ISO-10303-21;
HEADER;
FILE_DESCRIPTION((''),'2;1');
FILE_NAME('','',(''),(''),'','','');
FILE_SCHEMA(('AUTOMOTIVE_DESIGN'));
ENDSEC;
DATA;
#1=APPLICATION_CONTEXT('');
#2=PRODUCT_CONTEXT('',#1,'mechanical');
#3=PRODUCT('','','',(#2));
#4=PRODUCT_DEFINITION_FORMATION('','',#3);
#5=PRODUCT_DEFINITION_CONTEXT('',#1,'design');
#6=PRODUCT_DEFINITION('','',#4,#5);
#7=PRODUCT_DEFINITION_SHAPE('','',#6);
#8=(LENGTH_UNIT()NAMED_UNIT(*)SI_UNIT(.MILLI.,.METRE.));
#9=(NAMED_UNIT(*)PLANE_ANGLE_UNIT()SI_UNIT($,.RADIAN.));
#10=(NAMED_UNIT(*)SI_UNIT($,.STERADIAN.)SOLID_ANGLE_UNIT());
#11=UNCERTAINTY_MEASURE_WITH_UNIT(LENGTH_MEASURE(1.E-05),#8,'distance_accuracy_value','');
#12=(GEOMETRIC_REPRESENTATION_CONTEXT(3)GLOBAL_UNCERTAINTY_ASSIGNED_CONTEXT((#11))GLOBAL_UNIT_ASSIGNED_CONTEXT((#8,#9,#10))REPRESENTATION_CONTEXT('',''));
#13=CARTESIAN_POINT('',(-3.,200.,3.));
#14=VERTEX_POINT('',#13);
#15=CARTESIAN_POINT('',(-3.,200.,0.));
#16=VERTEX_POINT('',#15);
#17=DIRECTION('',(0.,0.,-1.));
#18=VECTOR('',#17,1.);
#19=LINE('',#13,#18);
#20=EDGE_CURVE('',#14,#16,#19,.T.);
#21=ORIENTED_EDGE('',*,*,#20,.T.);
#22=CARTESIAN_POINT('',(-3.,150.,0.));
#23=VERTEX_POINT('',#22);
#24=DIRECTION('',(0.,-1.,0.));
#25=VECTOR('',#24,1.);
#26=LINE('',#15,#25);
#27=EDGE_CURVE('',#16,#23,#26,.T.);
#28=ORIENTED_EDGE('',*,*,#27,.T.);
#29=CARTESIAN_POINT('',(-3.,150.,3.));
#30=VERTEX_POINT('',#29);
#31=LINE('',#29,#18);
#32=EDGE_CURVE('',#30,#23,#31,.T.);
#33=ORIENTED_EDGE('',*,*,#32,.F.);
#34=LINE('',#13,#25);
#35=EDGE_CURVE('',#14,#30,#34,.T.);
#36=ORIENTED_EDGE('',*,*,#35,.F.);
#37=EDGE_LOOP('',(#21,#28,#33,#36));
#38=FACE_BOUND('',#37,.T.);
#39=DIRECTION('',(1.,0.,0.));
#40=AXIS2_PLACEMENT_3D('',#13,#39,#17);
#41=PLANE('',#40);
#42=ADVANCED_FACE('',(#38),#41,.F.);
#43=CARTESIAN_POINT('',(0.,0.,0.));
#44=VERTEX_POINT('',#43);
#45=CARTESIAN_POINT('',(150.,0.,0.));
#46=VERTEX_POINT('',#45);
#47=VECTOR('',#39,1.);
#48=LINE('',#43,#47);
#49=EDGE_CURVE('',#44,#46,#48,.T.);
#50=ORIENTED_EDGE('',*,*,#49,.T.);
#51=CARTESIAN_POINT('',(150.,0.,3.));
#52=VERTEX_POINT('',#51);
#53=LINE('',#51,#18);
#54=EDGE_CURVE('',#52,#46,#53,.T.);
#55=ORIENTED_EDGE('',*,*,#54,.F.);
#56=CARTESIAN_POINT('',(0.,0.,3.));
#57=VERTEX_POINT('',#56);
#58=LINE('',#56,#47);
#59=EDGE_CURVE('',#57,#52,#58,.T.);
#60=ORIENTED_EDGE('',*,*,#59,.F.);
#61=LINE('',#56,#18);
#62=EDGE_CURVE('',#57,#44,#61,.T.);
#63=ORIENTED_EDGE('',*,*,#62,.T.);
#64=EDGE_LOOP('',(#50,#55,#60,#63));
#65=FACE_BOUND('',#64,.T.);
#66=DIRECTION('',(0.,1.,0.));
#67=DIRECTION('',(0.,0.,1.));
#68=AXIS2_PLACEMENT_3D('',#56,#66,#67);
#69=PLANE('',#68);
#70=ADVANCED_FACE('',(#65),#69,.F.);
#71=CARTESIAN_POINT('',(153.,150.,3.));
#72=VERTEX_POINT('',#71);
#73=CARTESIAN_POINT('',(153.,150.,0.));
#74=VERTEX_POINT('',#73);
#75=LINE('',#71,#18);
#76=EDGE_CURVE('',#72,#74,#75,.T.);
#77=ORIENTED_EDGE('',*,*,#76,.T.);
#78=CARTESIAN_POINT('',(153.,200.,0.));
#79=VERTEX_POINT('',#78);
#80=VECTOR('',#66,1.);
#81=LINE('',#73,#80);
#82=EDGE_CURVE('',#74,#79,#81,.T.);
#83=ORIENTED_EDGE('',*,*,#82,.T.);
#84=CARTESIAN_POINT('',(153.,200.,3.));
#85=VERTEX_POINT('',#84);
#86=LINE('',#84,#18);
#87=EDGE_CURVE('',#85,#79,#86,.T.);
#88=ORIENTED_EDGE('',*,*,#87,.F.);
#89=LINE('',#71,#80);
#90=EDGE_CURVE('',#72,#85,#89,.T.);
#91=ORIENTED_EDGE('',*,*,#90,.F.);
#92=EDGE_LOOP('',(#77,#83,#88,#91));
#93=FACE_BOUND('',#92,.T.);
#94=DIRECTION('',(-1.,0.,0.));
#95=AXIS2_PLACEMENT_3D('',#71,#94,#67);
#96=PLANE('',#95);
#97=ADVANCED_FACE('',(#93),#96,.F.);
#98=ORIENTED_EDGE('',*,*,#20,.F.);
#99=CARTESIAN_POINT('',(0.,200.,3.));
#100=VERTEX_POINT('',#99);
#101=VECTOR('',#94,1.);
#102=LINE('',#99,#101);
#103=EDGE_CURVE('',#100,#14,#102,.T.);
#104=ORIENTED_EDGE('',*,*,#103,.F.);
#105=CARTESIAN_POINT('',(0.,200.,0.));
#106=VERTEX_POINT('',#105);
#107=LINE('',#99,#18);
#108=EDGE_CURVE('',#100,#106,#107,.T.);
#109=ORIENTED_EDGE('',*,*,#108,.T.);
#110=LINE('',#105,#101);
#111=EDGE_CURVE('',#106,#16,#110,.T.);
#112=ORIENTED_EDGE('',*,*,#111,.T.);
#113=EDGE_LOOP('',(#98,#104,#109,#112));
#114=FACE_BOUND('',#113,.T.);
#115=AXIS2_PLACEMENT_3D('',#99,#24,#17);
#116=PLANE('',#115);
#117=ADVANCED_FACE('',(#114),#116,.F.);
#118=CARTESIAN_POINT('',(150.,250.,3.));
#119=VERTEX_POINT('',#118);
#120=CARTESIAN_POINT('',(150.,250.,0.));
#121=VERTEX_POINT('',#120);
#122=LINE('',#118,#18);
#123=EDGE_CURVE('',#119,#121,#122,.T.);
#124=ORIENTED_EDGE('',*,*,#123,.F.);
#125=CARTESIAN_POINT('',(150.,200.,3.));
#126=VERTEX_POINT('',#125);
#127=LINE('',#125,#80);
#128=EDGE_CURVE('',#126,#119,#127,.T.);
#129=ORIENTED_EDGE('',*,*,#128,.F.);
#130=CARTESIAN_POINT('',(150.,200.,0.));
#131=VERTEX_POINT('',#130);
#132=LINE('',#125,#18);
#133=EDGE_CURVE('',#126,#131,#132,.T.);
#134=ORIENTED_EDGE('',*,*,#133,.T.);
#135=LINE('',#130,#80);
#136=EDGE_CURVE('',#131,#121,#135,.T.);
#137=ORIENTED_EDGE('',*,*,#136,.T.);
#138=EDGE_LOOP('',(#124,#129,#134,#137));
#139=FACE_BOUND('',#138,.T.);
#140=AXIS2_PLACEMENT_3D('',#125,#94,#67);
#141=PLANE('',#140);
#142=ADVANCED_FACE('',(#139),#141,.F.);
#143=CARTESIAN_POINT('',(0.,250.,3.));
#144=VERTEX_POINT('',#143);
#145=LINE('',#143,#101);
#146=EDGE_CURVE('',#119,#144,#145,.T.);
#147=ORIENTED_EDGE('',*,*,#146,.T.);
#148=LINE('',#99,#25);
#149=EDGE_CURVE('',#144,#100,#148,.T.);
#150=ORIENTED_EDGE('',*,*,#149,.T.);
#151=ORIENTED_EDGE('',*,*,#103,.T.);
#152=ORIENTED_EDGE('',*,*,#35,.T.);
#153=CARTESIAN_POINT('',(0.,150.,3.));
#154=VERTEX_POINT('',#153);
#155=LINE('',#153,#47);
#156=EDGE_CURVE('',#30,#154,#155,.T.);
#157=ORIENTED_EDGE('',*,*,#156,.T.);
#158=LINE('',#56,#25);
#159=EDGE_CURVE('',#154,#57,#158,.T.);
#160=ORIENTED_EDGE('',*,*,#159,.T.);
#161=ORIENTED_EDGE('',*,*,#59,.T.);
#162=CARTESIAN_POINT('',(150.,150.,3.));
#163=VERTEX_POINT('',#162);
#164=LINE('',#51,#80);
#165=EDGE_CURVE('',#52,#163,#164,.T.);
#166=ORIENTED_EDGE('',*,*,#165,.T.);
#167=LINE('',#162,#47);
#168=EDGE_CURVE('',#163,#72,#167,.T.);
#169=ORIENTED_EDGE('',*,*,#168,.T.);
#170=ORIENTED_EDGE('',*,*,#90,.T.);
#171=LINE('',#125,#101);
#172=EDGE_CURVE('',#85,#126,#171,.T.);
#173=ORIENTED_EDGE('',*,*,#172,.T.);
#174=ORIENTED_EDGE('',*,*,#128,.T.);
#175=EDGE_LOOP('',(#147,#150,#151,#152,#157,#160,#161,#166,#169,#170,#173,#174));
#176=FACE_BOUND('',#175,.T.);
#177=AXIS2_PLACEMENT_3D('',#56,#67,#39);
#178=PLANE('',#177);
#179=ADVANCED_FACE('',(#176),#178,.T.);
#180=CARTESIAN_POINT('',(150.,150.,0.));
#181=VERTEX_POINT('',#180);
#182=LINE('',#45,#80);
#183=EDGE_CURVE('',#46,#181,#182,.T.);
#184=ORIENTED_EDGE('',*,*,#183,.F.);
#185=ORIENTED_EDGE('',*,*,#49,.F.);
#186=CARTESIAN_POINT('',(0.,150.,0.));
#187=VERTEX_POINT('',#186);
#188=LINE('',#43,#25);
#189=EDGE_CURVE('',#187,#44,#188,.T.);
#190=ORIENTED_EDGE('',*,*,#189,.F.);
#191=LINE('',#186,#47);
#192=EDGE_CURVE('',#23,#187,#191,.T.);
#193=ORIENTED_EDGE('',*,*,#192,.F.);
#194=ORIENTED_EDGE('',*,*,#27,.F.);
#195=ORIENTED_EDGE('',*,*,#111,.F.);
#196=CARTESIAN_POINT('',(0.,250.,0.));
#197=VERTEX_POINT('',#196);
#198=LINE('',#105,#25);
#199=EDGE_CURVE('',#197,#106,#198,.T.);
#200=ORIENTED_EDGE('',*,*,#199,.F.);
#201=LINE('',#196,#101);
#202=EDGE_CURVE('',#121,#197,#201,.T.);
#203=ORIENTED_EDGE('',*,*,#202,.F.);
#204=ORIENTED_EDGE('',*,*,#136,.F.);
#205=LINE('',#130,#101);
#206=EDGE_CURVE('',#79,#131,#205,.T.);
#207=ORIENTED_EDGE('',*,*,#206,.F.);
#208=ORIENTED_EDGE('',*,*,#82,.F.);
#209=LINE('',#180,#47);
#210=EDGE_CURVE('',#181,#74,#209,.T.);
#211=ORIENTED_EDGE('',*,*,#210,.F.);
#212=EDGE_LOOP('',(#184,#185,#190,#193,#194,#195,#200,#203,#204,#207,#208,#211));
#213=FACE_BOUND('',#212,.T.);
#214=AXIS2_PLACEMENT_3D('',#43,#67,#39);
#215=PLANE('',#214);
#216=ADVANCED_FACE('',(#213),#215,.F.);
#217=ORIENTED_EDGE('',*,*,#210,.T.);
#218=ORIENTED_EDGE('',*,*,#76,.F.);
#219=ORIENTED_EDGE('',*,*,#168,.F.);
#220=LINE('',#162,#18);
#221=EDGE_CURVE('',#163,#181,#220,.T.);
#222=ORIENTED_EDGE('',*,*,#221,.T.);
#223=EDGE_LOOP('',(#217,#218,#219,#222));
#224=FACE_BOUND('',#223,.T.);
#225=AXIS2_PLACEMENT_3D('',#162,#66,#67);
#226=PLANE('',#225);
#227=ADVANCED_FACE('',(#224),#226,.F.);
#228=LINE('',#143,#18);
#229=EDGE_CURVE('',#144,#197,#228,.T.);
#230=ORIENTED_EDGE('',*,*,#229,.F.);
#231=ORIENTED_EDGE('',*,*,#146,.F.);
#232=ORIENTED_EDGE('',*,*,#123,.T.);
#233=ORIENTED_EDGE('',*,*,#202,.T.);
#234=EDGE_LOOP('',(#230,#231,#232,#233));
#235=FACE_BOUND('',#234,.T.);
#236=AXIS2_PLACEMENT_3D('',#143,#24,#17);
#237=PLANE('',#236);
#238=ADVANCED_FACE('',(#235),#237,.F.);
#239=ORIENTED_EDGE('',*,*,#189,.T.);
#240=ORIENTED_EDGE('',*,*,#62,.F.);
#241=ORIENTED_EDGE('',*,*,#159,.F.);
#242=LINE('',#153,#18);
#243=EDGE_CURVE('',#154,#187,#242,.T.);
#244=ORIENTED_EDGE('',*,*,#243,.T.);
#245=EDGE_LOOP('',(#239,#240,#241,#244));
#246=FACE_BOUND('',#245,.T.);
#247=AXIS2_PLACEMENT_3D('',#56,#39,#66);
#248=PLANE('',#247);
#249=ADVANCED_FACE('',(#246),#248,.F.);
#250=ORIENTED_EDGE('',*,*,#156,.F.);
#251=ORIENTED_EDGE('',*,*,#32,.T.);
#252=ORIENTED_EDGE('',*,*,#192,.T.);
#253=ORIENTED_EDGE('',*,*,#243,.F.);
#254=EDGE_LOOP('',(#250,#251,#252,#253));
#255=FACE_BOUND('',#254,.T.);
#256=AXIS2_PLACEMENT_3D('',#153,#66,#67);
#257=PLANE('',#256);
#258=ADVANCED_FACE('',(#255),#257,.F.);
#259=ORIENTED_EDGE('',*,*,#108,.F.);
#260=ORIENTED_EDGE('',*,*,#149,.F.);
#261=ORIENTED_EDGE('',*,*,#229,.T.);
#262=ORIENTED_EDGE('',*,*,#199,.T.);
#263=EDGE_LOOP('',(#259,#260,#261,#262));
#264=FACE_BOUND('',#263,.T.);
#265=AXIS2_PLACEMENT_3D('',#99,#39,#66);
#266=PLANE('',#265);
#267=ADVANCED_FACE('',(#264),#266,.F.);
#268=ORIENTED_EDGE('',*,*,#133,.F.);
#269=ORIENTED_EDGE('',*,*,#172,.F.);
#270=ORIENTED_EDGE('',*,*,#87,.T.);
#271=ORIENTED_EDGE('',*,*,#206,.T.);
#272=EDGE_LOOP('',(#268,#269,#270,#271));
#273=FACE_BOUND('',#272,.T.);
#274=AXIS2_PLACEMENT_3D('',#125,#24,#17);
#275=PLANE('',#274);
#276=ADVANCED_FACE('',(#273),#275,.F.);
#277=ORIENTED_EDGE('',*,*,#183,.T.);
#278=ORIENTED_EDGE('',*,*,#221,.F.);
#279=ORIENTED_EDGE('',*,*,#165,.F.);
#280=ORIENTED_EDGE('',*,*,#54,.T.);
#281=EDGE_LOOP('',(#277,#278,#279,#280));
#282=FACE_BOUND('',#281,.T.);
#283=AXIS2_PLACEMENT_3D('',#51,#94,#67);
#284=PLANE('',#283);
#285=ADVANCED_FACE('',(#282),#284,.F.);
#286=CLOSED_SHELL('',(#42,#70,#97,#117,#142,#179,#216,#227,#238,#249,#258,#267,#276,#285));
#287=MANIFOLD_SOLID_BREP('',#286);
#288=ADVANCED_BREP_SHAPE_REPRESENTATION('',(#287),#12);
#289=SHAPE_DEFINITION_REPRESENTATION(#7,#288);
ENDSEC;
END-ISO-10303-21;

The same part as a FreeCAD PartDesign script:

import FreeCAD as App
import Part
import Sketcher

V = App.Vector
Q = App.Units.Quantity


def add_polygon(sketch, points):
    """Adds a closed chain of lines whose ends are joined by coincident constraints."""
    first, n = sketch.GeometryCount, len(points)
    for a, b in zip(points, points[1:] + points[:1]):
        sketch.addGeometry(Part.LineSegment(App.Vector(*a, 0), App.Vector(*b, 0)), False)
    for i in range(n):
        sketch.addConstraint(Sketcher.Constraint("Coincident", first + i, 2, first + (i + 1) % n, 1))

doc = App.newDocument("Part")
params = doc.addObject("Spreadsheet::Sheet", "Params")
for row, (alias, value) in enumerate([
    ("sketch1_width", "3 mm"),
    ("sketch1_width2", "150 mm"),
    ("sketch1_height", "50 mm"),
    ("pad1_length", "3 mm"),
], start=1):
    params.set(f"A{row}", alias)
    params.set(f"B{row}", "=" + value)
    params.setAlias(f"B{row}", alias)

body = doc.addObject("PartDesign::Body", "Body")

# Sketch on XY plane
sketch1 = doc.addObject("Sketcher::SketchObject", "Sketch")
body.addObject(sketch1)
sketch1.AttachmentSupport = (doc.XY_Plane, [""])
sketch1.MapMode = "FlatFace"
add_polygon(sketch1, [(0, 250), (0, 200), (-3, 200), (-3, 150), (0, 150), (0, 0), (150, 0), (150, 150), (153, 150), (153, 200), (150, 200), (150, 250)])  # lines 0-11
sketch1.addConstraint([
    Sketcher.Constraint("Vertical", 0),
    Sketcher.Constraint("Horizontal", 1),
    Sketcher.Constraint("Vertical", 2),
    Sketcher.Constraint("Horizontal", 3),
    Sketcher.Constraint("Vertical", 4),
    Sketcher.Constraint("Horizontal", 5),
    Sketcher.Constraint("Vertical", 6),
    Sketcher.Constraint("Horizontal", 7),
    Sketcher.Constraint("Vertical", 8),
    Sketcher.Constraint("Horizontal", 9),
    Sketcher.Constraint("Vertical", 10),
    Sketcher.Constraint("Horizontal", 11),
    Sketcher.Constraint("Coincident", 4, 2, -1, 1),
    Sketcher.Constraint("PointOnObject", 0, 2, -2),
    Sketcher.Constraint("Horizontal", 3, 2, 6, 2),
    Sketcher.Constraint("Horizontal", 1, 2, 8, 2),
    Sketcher.Constraint("Vertical", 6, 2, 9, 2),
    Sketcher.Constraint("Equal", 3, 7),
    Sketcher.Constraint("Equal", 0, 2),
    Sketcher.Constraint("Equal", 11, 4),
    Sketcher.Constraint("DistanceX", 1, 2, 1, 1, Q("3 mm")),
    Sketcher.Constraint("DistanceX", 5, 1, 5, 2, Q("150 mm")),
    Sketcher.Constraint("DistanceY", 0, 2, 0, 1, Q("50 mm")),
])
sketch1.setExpression("Constraints[32]", "Params.sketch1_width")
sketch1.setExpression("Constraints[33]", "Params.sketch1_width2")
sketch1.setExpression("Constraints[34]", "Params.sketch1_height")
pad1 = doc.addObject("PartDesign::Pad", "Pad")
body.addObject(pad1)
pad1.Profile = sketch1
pad1.setExpression("Length", "Params.pad1_length")

doc.recompute()
